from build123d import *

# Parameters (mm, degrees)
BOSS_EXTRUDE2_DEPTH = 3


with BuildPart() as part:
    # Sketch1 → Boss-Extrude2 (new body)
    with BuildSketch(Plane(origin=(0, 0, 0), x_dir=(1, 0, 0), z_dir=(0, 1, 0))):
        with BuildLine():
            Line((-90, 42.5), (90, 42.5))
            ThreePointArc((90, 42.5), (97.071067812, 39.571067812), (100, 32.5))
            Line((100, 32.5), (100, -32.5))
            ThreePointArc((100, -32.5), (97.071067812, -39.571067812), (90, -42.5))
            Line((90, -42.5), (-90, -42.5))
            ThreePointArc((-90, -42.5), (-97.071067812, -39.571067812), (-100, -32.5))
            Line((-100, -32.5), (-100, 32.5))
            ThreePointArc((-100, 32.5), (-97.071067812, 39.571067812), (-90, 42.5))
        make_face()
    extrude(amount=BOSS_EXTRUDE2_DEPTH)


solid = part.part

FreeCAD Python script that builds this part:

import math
import FreeCAD as App
import Part
import Sketcher
from FreeCAD import Vector

doc = App.newDocument("Part")
body = doc.addObject("PartDesign::Body", "Body")

sketch1 = body.newObject("Sketcher::SketchObject", "Sketch")
sketch1.AttachmentSupport = (doc.getObject("XZ_Plane"), [""])
sketch1.MapMode = "FlatFace"
sketch1.addGeometry([
    Part.LineSegment(Vector(90, -42, 0), Vector(-90, -42, 0)),
    Part.ArcOfCircle(Part.Circle(Vector(-90, -32, 0), Vector(0, 0, 1), 10), math.radians(180), math.radians(270)),
    Part.LineSegment(Vector(-100, -32, 0), Vector(-100, 32, 0)),
    Part.ArcOfCircle(Part.Circle(Vector(-90, 32, 0), Vector(0, 0, 1), 10), math.radians(90), math.radians(180)),
    Part.LineSegment(Vector(-90, 42, 0), Vector(90, 42, 0)),
    Part.ArcOfCircle(Part.Circle(Vector(90, 32, 0), Vector(0, 0, 1), 10), math.radians(0), math.radians(90)),
    Part.LineSegment(Vector(100, 32, 0), Vector(100, -32, 0)),
    Part.ArcOfCircle(Part.Circle(Vector(90, -32, 0), Vector(0, 0, 1), 10), math.radians(-90), math.radians(0)),
], False)
sketch1.addConstraint([
    Sketcher.Constraint("Tangent", 0, 2, 1, 2),
    Sketcher.Constraint("Tangent", 1, 1, 2, 1),
    Sketcher.Constraint("Tangent", 2, 2, 3, 2),
    Sketcher.Constraint("Tangent", 3, 1, 4, 1),
    Sketcher.Constraint("Tangent", 4, 2, 5, 2),
    Sketcher.Constraint("Tangent", 5, 1, 6, 1),
    Sketcher.Constraint("Tangent", 6, 2, 7, 2),
    Sketcher.Constraint("Tangent", 7, 1, 0, 1),
    Sketcher.Constraint("Horizontal", 0),
    Sketcher.Constraint("Vertical", 2),
    Sketcher.Constraint("Horizontal", 4),
    Sketcher.Constraint("Vertical", 6),
    Sketcher.Constraint("Equal", 1, 3),
    Sketcher.Constraint("Equal", 3, 5),
    Sketcher.Constraint("Equal", 5, 7),
    Sketcher.Constraint("Symmetric", 1, 3, 5, 3, -1, 1),
    Sketcher.Constraint("Radius", 1, 10.0),
    Sketcher.Constraint("DistanceX", 0, 2, 0, 1, 180.0),
    Sketcher.Constraint("DistanceY", 2, 1, 2, 2, 65.0),
])
pad1 = body.newObject("PartDesign::Pad", "Pad")
pad1.Profile = sketch1
pad1.Length = 3
pad1.Reversed = True

doc.recompute()
